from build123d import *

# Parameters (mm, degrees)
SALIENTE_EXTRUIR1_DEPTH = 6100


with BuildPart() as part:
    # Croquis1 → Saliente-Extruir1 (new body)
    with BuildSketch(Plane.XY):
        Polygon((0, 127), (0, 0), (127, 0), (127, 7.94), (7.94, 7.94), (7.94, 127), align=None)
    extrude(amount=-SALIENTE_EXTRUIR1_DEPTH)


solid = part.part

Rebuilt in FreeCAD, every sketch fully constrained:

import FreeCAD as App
import Part
import Sketcher
from FreeCAD import Vector


def add_polygon(sketch, points):
    """Adds a closed chain of lines whose ends are joined by coincident constraints."""
    first, n = sketch.GeometryCount, len(points)
    for a, b in zip(points, points[1:] + points[:1]):
        sketch.addGeometry(Part.LineSegment(App.Vector(*a, 0), App.Vector(*b, 0)), False)
    for i in range(n):
        sketch.addConstraint(Sketcher.Constraint("Coincident", first + i, 2, first + (i + 1) % n, 1))

doc = App.newDocument("Part")
body = doc.addObject("PartDesign::Body", "Body")

# Sketch on XY plane
sketch1 = doc.addObject("Sketcher::SketchObject", "Sketch")
body.addObject(sketch1)
sketch1.AttachmentSupport = (doc.XY_Plane, [""])
sketch1.MapMode = "FlatFace"
add_polygon(sketch1, [(0, 127), (0, 0), (127, 0), (127, 8), (8, 8), (8, 127)])  # lines 0-5
sketch1.addConstraint([
    Sketcher.Constraint("Vertical", 0),
    Sketcher.Constraint("Horizontal", 1),
    Sketcher.Constraint("Vertical", 2),
    Sketcher.Constraint("Horizontal", 3),
    Sketcher.Constraint("Vertical", 4),
    Sketcher.Constraint("Horizontal", 5),
    Sketcher.Constraint("Coincident", 0, 2, -1, 1),
    Sketcher.Constraint("Equal", 1, 0),
    Sketcher.Constraint("Equal", 5, 2),
    Sketcher.Constraint("DistanceX", 1, 1, 1, 2, 127.0),
    Sketcher.Constraint("DistanceX", 3, 2, 3, 1, 119.06),
])
pad1 = doc.addObject("PartDesign::Pad", "Pad")
body.addObject(pad1)
pad1.Profile = sketch1
pad1.Length = 6100
pad1.Reversed = True

doc.recompute()
